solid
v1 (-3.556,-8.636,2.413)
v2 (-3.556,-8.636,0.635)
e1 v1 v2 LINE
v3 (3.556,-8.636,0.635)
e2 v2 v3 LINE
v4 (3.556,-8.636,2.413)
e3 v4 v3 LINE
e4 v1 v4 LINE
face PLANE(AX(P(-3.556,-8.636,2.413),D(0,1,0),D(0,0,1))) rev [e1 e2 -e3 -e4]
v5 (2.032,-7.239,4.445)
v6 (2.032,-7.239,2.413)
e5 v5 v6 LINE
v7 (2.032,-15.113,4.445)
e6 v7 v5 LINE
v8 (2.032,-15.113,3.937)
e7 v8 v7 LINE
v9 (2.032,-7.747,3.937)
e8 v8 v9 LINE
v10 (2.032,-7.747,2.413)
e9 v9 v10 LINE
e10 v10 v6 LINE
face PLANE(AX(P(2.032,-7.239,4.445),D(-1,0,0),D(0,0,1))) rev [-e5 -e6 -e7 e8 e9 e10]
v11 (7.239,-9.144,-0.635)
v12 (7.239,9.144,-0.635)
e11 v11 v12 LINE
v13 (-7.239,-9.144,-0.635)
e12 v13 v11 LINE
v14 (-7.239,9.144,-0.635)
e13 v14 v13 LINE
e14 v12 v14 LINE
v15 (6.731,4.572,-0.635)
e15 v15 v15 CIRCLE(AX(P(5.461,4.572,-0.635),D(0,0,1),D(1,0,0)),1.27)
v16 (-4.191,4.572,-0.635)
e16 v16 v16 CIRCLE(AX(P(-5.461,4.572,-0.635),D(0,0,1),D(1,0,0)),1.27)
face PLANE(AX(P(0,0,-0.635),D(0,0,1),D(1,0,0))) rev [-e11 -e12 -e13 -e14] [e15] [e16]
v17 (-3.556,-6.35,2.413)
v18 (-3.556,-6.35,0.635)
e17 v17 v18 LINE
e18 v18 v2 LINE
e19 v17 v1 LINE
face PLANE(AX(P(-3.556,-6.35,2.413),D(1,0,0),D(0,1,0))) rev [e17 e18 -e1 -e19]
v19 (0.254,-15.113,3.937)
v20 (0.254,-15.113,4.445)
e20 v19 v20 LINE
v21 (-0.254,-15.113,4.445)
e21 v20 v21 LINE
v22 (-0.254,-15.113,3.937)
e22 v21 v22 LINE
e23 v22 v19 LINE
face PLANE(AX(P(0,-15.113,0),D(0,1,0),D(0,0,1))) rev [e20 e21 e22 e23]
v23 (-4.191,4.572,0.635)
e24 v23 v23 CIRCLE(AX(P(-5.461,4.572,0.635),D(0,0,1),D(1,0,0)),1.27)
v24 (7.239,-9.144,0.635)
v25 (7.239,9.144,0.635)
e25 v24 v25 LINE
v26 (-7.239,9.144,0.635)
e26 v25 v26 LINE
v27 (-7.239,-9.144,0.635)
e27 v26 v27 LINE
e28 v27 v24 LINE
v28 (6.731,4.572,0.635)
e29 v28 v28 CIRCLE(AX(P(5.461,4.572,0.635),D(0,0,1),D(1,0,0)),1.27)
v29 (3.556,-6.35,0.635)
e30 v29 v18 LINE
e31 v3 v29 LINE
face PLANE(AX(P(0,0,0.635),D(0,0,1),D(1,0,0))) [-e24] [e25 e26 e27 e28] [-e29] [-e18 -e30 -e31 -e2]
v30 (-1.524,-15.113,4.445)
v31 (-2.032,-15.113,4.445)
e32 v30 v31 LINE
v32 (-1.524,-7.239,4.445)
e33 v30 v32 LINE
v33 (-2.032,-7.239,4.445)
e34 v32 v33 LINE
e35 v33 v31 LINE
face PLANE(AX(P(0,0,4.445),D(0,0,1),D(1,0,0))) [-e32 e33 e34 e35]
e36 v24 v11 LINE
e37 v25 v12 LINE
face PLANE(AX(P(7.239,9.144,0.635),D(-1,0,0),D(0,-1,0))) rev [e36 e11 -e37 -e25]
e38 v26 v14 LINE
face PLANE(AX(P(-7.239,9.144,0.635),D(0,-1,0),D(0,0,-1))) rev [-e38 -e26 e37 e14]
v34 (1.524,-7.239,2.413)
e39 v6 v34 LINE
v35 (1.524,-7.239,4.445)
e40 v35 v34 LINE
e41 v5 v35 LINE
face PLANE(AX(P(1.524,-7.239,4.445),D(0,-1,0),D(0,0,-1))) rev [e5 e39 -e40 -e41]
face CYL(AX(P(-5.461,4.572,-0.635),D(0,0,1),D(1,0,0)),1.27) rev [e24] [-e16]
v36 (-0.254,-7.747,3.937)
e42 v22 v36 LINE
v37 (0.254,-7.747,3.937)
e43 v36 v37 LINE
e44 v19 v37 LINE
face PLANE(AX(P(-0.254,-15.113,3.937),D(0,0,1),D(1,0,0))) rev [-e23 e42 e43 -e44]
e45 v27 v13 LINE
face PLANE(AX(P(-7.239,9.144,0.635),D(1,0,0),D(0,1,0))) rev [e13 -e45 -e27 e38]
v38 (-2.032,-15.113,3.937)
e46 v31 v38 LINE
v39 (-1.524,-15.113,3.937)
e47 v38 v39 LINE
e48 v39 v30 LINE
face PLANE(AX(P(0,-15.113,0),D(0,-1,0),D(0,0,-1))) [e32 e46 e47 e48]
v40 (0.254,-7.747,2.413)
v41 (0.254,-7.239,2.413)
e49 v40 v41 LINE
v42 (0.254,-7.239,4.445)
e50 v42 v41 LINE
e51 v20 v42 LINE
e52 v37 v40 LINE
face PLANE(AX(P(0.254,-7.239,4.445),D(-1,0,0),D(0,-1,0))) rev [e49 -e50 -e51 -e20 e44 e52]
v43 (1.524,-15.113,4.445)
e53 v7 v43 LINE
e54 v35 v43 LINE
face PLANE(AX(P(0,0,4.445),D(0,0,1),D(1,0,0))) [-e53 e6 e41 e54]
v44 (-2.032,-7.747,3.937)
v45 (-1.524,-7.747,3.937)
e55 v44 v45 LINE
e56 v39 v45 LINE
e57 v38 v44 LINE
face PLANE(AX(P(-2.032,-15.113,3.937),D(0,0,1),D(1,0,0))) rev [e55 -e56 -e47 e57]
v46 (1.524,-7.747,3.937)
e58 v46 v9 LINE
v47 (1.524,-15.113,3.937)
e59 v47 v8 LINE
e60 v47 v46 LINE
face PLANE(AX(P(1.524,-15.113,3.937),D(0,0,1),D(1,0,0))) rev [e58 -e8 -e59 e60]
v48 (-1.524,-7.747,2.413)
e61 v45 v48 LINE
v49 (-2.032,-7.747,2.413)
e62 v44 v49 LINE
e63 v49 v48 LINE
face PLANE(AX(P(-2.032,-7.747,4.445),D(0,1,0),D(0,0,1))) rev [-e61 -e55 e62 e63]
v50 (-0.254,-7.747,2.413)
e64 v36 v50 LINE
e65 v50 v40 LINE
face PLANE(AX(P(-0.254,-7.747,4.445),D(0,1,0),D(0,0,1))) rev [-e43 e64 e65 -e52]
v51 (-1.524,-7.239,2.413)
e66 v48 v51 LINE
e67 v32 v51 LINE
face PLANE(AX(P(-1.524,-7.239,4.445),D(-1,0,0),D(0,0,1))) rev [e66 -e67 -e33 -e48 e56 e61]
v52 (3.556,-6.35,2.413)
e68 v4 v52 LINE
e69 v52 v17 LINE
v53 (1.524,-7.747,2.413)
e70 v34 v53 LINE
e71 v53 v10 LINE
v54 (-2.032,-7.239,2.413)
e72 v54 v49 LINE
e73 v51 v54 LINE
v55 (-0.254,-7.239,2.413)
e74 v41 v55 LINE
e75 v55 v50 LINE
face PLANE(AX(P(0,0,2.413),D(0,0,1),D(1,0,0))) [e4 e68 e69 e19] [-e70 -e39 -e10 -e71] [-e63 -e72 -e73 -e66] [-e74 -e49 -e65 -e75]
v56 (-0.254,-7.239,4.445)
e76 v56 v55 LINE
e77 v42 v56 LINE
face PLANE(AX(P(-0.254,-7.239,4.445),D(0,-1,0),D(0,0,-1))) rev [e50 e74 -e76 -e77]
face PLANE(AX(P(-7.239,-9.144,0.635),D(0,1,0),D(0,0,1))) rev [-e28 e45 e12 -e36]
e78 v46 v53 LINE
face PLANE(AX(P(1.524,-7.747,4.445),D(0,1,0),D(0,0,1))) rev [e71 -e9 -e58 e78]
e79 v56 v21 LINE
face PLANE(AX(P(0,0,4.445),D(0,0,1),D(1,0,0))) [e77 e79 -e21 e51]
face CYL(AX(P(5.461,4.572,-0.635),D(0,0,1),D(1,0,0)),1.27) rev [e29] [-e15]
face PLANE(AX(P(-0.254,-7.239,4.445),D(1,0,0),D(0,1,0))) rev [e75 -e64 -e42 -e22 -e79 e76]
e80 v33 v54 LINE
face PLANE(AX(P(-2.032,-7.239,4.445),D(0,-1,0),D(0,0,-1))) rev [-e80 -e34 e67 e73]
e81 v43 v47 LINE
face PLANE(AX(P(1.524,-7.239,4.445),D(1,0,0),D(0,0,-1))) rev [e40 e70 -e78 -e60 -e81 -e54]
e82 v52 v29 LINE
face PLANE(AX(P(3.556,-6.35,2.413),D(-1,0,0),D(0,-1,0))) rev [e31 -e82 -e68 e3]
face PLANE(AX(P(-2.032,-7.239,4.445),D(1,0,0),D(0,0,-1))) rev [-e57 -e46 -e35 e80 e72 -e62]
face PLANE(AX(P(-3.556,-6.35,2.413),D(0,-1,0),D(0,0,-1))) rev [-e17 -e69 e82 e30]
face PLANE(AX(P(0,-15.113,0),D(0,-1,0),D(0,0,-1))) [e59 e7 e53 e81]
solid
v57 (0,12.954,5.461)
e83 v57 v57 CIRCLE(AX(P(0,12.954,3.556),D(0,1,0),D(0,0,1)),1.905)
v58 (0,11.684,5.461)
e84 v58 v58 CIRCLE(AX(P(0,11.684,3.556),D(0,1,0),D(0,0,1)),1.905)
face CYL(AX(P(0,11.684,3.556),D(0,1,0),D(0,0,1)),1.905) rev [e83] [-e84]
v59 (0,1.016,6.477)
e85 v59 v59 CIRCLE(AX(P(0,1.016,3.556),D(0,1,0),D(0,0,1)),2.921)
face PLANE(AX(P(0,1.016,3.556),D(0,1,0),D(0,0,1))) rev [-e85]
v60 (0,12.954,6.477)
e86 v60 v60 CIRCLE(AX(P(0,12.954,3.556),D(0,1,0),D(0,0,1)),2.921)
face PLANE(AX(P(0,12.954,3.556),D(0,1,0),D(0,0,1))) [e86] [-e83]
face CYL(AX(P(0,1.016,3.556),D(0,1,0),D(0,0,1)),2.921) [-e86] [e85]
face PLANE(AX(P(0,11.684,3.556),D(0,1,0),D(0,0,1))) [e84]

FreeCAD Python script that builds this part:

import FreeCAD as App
import Part
import Sketcher
from FreeCAD import Vector
Q = App.Units.Quantity


def add_polygon(sketch, points):
    """Adds a closed chain of lines whose ends are joined by coincident constraints."""
    first, n = sketch.GeometryCount, len(points)
    for a, b in zip(points, points[1:] + points[:1]):
        sketch.addGeometry(Part.LineSegment(App.Vector(*a, 0), App.Vector(*b, 0)), False)
    for i in range(n):
        sketch.addConstraint(Sketcher.Constraint("Coincident", first + i, 2, first + (i + 1) % n, 1))

doc = App.newDocument("Part")
body = doc.addObject("PartDesign::Body", "Body")

# Sketch on XY plane
sketch1 = doc.addObject("Sketcher::SketchObject", "Sketch")
body.addObject(sketch1)
sketch1.AttachmentSupport = (doc.XY_Plane, [""])
sketch1.MapMode = "FlatFace"
add_polygon(sketch1, [(-7, 9), (-7, -9), (7, -9), (7, 9)])  # lines 0-3
sketch1.addConstraint(Sketcher.Constraint("Vertical", 0))
sketch1.addConstraint(Sketcher.Constraint("Horizontal", 1))
sketch1.addConstraint(Sketcher.Constraint("Vertical", 2))
sketch1.addConstraint(Sketcher.Constraint("Horizontal", 3))
sketch1.addConstraint(Sketcher.Constraint("Symmetric", 0, 2, 2, 2, -1, 1))
sketch1.addConstraint(Sketcher.Constraint("DistanceX", 1, 1, 1, 2, Q("0.57 in")))
sketch1.addConstraint(Sketcher.Constraint("DistanceY", 0, 2, 0, 1, Q("0.72 in")))
pad1 = doc.addObject("PartDesign::Pad", "Pad")
body.addObject(pad1)
pad1.Profile = sketch1
pad1.Length = Q("0.05 in")
pad1.Midplane = True

# Sketch on XY plane
sketch2 = doc.addObject("Sketcher::SketchObject", "Sketch001")
body.addObject(sketch2)
sketch2.AttachmentSupport = (doc.XY_Plane, [""])
sketch2.MapMode = "FlatFace"
sketch2.AttachmentOffset = App.Placement(Vector(0, 0, 0.025 * 25.4), App.Rotation())
add_polygon(sketch2, [(-3.6, -6.3), (-3.6, -8.6), (3.6, -8.6), (3.6, -6.3)])  # lines 0-3
sketch2.addConstraint(Sketcher.Constraint("Vertical", 0))
sketch2.addConstraint(Sketcher.Constraint("Horizontal", 1))
sketch2.addConstraint(Sketcher.Constraint("Vertical", 2))
sketch2.addConstraint(Sketcher.Constraint("Horizontal", 3))
sketch2.addConstraint(Sketcher.Constraint("DistanceX", 1, 1, 1, 2, Q("0.28 in")))
sketch2.addConstraint(Sketcher.Constraint("DistanceY", 0, 2, 0, 1, Q("0.09 in")))
sketch2.addConstraint(Sketcher.Constraint("DistanceX", 0, 2, -1, 1, Q("0.14 in")))
sketch2.addConstraint(Sketcher.Constraint("DistanceY", 0, 2, -1, 1, Q("0.34 in")))
pad2 = doc.addObject("PartDesign::Pad", "Pad001")
body.addObject(pad2)
pad2.Profile = sketch2
pad2.Length = Q("0.07 in")

# Sketch on XY plane
sketch3 = doc.addObject("Sketcher::SketchObject", "Sketch002")
body.addObject(sketch3)
sketch3.AttachmentSupport = (doc.XY_Plane, [""])
sketch3.MapMode = "FlatFace"
sketch3.AttachmentOffset = App.Placement(Vector(0, 0, 0.095 * 25.4), App.Rotation())
add_polygon(sketch3, [(-2, -7.2), (-2, -7.7), (-1.5, -7.7), (-1.5, -7.2)])  # lines 0-3
add_polygon(sketch3, [(-0.3, -7.2), (-0.3, -7.7), (0.3, -7.7), (0.3, -7.2)])  # lines 4-7
add_polygon(sketch3, [(1.5, -7.2), (1.5, -7.7), (2, -7.7), (2, -7.2)])  # lines 8-11
sketch3.addConstraint(Sketcher.Constraint("Vertical", 0))
sketch3.addConstraint(Sketcher.Constraint("Horizontal", 1))
sketch3.addConstraint(Sketcher.Constraint("Vertical", 2))
sketch3.addConstraint(Sketcher.Constraint("Horizontal", 3))
sketch3.addConstraint(Sketcher.Constraint("Vertical", 4))
sketch3.addConstraint(Sketcher.Constraint("Horizontal", 5))
sketch3.addConstraint(Sketcher.Constraint("Vertical", 6))
sketch3.addConstraint(Sketcher.Constraint("Horizontal", 7))
sketch3.addConstraint(Sketcher.Constraint("Vertical", 8))
sketch3.addConstraint(Sketcher.Constraint("Horizontal", 9))
sketch3.addConstraint(Sketcher.Constraint("Vertical", 10))
sketch3.addConstraint(Sketcher.Constraint("Horizontal", 11))
sketch3.addConstraint(Sketcher.Constraint("Symmetric", 1, 2, 8, 2, -2))
sketch3.addConstraint(Sketcher.Constraint("Symmetric", 3, 2, 10, 2, -2))
sketch3.addConstraint(Sketcher.Constraint("Horizontal", 1, 2, 4, 2))
sketch3.addConstraint(Sketcher.Constraint("Horizontal", 3, 2, 6, 2))
sketch3.addConstraint(Sketcher.Constraint("Equal", 3, 5))
sketch3.addConstraint(Sketcher.Constraint("Equal", 11, 0))
sketch3.addConstraint(Sketcher.Constraint("DistanceX", 1, 1, 1, 2, Q("0.02 in")))
sketch3.addConstraint(Sketcher.Constraint("DistanceX", 0, 2, -1, 1, Q("0.08 in")))
sketch3.addConstraint(Sketcher.Constraint("DistanceX", 4, 2, -1, 1, Q("0.01 in")))
sketch3.addConstraint(Sketcher.Constraint("DistanceY", 0, 2, -1, 1, Q("0.305 in")))
pad3 = doc.addObject("PartDesign::Pad", "Pad002")
body.addObject(pad3)
pad3.Profile = sketch3
pad3.Length = Q("0.08 in")

# Sketch on XZ plane
sketch4 = doc.addObject("Sketcher::SketchObject", "Sketch003")
body.addObject(sketch4)
sketch4.AttachmentSupport = (doc.XZ_Plane, [""])
sketch4.MapMode = "FlatFace"
sketch4.AttachmentOffset = App.Placement(Vector(0, 0, 0.305 * 25.4), App.Rotation())
add_polygon(sketch4, [(-2, 4.4), (-2, 3.9), (-1.5, 3.9), (-1.5, 4.4)])  # lines 0-3
add_polygon(sketch4, [(-0.3, 4.4), (-0.3, 3.9), (0.3, 3.9), (0.3, 4.4)])  # lines 4-7
add_polygon(sketch4, [(1.5, 4.4), (1.5, 3.9), (2, 3.9), (2, 4.4)])  # lines 8-11
sketch4.addConstraint(Sketcher.Constraint("Vertical", 0))
sketch4.addConstraint(Sketcher.Constraint("Horizontal", 1))
sketch4.addConstraint(Sketcher.Constraint("Vertical", 2))
sketch4.addConstraint(Sketcher.Constraint("Horizontal", 3))
sketch4.addConstraint(Sketcher.Constraint("Vertical", 4))
sketch4.addConstraint(Sketcher.Constraint("Horizontal", 5))
sketch4.addConstraint(Sketcher.Constraint("Vertical", 6))
sketch4.addConstraint(Sketcher.Constraint("Horizontal", 7))
sketch4.addConstraint(Sketcher.Constraint("Vertical", 8))
sketch4.addConstraint(Sketcher.Constraint("Horizontal", 9))
sketch4.addConstraint(Sketcher.Constraint("Vertical", 10))
sketch4.addConstraint(Sketcher.Constraint("Horizontal", 11))
sketch4.addConstraint(Sketcher.Constraint("Symmetric", 1, 2, 8, 2, -2))
sketch4.addConstraint(Sketcher.Constraint("Symmetric", 3, 2, 10, 2, -2))
sketch4.addConstraint(Sketcher.Constraint("Horizontal", 1, 2, 4, 2))
sketch4.addConstraint(Sketcher.Constraint("Horizontal", 3, 2, 6, 2))
sketch4.addConstraint(Sketcher.Constraint("Equal", 3, 5))
sketch4.addConstraint(Sketcher.Constraint("Equal", 11, 0))
sketch4.addConstraint(Sketcher.Constraint("DistanceX", 1, 1, 1, 2, Q("0.02 in")))
sketch4.addConstraint(Sketcher.Constraint("DistanceX", 0, 2, -1, 1, Q("0.08 in")))
sketch4.addConstraint(Sketcher.Constraint("DistanceX", 4, 2, -1, 1, Q("0.01 in")))
sketch4.addConstraint(Sketcher.Constraint("DistanceY", -1, 1, 0, 2, Q("0.155 in")))
pad4 = doc.addObject("PartDesign::Pad", "Pad003")
body.addObject(pad4)
pad4.Profile = sketch4
pad4.Length = Q("0.29 in")

# Sketch on XY plane
sketch5 = doc.addObject("Sketcher::SketchObject", "Sketch004")
body.addObject(sketch5)
sketch5.AttachmentSupport = (doc.XY_Plane, [""])
sketch5.MapMode = "FlatFace"
sketch5.AttachmentOffset = App.Placement(Vector(0, 0, 0.025 * 25.4), App.Rotation())
sketch5.addGeometry(Part.Circle(Vector(-5.5, 4.6, 0), Vector(0, 0, 1), 1.3), False)
sketch5.addGeometry(Part.Circle(Vector(5.5, 4.6, 0), Vector(0, 0, 1), 1.3), False)
sketch5.addConstraint(Sketcher.Constraint("Equal", 0, 1))
sketch5.addConstraint(Sketcher.Constraint("Symmetric", 0, 3, 1, 3, -2))
sketch5.addConstraint(Sketcher.Constraint("Diameter", 0, Q("0.1 in")))
sketch5.addConstraint(Sketcher.Constraint("DistanceY", -1, 1, 0, 3, Q("0.18 in")))
sketch5.addConstraint(Sketcher.Constraint("DistanceX", 0, 3, 1, 3, Q("0.43 in")))
pocket1 = doc.addObject("PartDesign::Pocket", "Pocket")
body.addObject(pocket1)
pocket1.Profile = sketch5
pocket1.Type = "ThroughAll"
pocket1.Midplane = True
body2 = doc.addObject("PartDesign::Body", "Body001")

# Sketch on XZ plane
sketch6 = doc.addObject("Sketcher::SketchObject", "Sketch005")
body2.addObject(sketch6)
sketch6.AttachmentSupport = (doc.getObject("XZ_Plane001"), [""])
sketch6.MapMode = "FlatFace"
sketch6.AttachmentOffset = App.Placement(Vector(0, 0, -0.36 * 25.4), App.Rotation())
sketch6.addGeometry(Part.Circle(Vector(0, 3.6, 0), Vector(0, 0, 1), 2.9), False)
sketch6.addConstraint(Sketcher.Constraint("PointOnObject", 0, 3, -2))
sketch6.addConstraint(Sketcher.Constraint("Diameter", 0, Q("0.23 in")))
sketch6.addConstraint(Sketcher.Constraint("DistanceY", -1, 1, 0, 3, Q("0.14 in")))
pad5 = doc.addObject("PartDesign::Pad", "Pad004")
body2.addObject(pad5)
pad5.Profile = sketch6
pad5.Type = "TwoLengths"
pad5.Length = Q("0.15 in")
pad5.Length2 = Q("0.32 in")
pad5.Reversed = True

# Sketch on XZ plane
sketch7 = doc.addObject("Sketcher::SketchObject", "Sketch006")
body2.addObject(sketch7)
sketch7.AttachmentSupport = (doc.getObject("XZ_Plane001"), [""])
sketch7.MapMode = "FlatFace"
sketch7.AttachmentOffset = App.Placement(Vector(0, 0, -0.51 * 25.4), App.Rotation())
sketch7.addGeometry(Part.Circle(Vector(0, 3.6, 0), Vector(0, 0, 1), 1.9), False)
sketch7.addConstraint(Sketcher.Constraint("PointOnObject", 0, 3, -2))
sketch7.addConstraint(Sketcher.Constraint("Diameter", 0, Q("0.15 in")))
sketch7.addConstraint(Sketcher.Constraint("DistanceY", -1, 1, 0, 3, Q("0.14 in")))
pocket2 = doc.addObject("PartDesign::Pocket", "Pocket001")
body2.addObject(pocket2)
pocket2.Profile = sketch7
pocket2.Length = Q("0.05 in")
pocket2.Reversed = True

doc.recompute()
